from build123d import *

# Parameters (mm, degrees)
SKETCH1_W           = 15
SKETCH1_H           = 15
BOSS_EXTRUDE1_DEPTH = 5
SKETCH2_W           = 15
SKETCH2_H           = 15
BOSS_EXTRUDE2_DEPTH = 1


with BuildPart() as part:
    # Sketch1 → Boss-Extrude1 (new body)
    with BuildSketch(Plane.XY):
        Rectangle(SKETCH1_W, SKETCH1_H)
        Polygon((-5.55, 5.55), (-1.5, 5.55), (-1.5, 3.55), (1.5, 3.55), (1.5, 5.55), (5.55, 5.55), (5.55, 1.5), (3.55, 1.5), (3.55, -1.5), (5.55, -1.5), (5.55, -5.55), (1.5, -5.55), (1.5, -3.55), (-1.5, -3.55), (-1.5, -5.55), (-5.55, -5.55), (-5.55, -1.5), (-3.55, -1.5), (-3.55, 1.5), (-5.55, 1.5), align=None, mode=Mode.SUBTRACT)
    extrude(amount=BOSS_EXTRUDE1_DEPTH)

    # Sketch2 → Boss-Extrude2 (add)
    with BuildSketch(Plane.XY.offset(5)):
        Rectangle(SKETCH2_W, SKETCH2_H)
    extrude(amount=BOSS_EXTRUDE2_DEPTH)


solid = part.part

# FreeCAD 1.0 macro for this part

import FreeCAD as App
import Part
import Sketcher

doc = App.newDocument("Part")
body = doc.addObject("PartDesign::Body", "Body")

sketch1 = body.newObject("Sketcher::SketchObject", "Sketch")
sketch1.AttachmentSupport = (doc.getObject("XY_Plane"), [""])
sketch1.MapMode = "FlatFace"
sketch1.addGeometry(Part.LineSegment(App.Vector(-7.5, 7.5, 0), App.Vector(-7.5, -7.5, 0)), False)
sketch1.addGeometry(Part.LineSegment(App.Vector(-7.5, -7.5, 0), App.Vector(7.5, -7.5, 0)), False)
sketch1.addGeometry(Part.LineSegment(App.Vector(7.5, -7.5, 0), App.Vector(7.5, 7.5, 0)), False)
sketch1.addGeometry(Part.LineSegment(App.Vector(7.5, 7.5, 0), App.Vector(-7.5, 7.5, 0)), False)
sketch1.addGeometry(Part.LineSegment(App.Vector(-5.55, 1.5, 0), App.Vector(-5.55, 5.55, 0)), False)
sketch1.addGeometry(Part.LineSegment(App.Vector(-5.55, 5.55, 0), App.Vector(-1.5, 5.55, 0)), False)
sketch1.addGeometry(Part.LineSegment(App.Vector(-1.5, 5.55, 0), App.Vector(-1.5, 3.55, 0)), False)
sketch1.addGeometry(Part.LineSegment(App.Vector(-1.5, 3.55, 0), App.Vector(1.5, 3.55, 0)), False)
sketch1.addGeometry(Part.LineSegment(App.Vector(1.5, 3.55, 0), App.Vector(1.5, 5.55, 0)), False)
sketch1.addGeometry(Part.LineSegment(App.Vector(1.5, 5.55, 0), App.Vector(5.55, 5.55, 0)), False)
sketch1.addGeometry(Part.LineSegment(App.Vector(5.55, 5.55, 0), App.Vector(5.55, 1.5, 0)), False)
sketch1.addGeometry(Part.LineSegment(App.Vector(5.55, 1.5, 0), App.Vector(3.55, 1.5, 0)), False)
sketch1.addGeometry(Part.LineSegment(App.Vector(3.55, 1.5, 0), App.Vector(3.55, -1.5, 0)), False)
sketch1.addGeometry(Part.LineSegment(App.Vector(3.55, -1.5, 0), App.Vector(5.55, -1.5, 0)), False)
sketch1.addGeometry(Part.LineSegment(App.Vector(5.55, -1.5, 0), App.Vector(5.55, -5.55, 0)), False)
sketch1.addGeometry(Part.LineSegment(App.Vector(5.55, -5.55, 0), App.Vector(1.5, -5.55, 0)), False)
sketch1.addGeometry(Part.LineSegment(App.Vector(1.5, -5.55, 0), App.Vector(1.5, -3.55, 0)), False)
sketch1.addGeometry(Part.LineSegment(App.Vector(1.5, -3.55, 0), App.Vector(-1.5, -3.55, 0)), False)
sketch1.addGeometry(Part.LineSegment(App.Vector(-1.5, -3.55, 0), App.Vector(-1.5, -5.55, 0)), False)
sketch1.addGeometry(Part.LineSegment(App.Vector(-1.5, -5.55, 0), App.Vector(-5.55, -5.55, 0)), False)
sketch1.addGeometry(Part.LineSegment(App.Vector(-5.55, -5.55, 0), App.Vector(-5.55, -1.5, 0)), False)
sketch1.addGeometry(Part.LineSegment(App.Vector(-5.55, -1.5, 0), App.Vector(-3.55, -1.5, 0)), False)
sketch1.addGeometry(Part.LineSegment(App.Vector(-3.55, -1.5, 0), App.Vector(-3.55, 1.5, 0)), False)
sketch1.addGeometry(Part.LineSegment(App.Vector(-3.55, 1.5, 0), App.Vector(-5.55, 1.5, 0)), False)
sketch1.addConstraint(Sketcher.Constraint("Coincident", 0, 2, 1, 1))
sketch1.addConstraint(Sketcher.Constraint("Coincident", 1, 2, 2, 1))
sketch1.addConstraint(Sketcher.Constraint("Coincident", 2, 2, 3, 1))
sketch1.addConstraint(Sketcher.Constraint("Coincident", 3, 2, 0, 1))
sketch1.addConstraint(Sketcher.Constraint("Coincident", 4, 2, 5, 1))
sketch1.addConstraint(Sketcher.Constraint("Coincident", 5, 2, 6, 1))
sketch1.addConstraint(Sketcher.Constraint("Coincident", 6, 2, 7, 1))
sketch1.addConstraint(Sketcher.Constraint("Coincident", 7, 2, 8, 1))
sketch1.addConstraint(Sketcher.Constraint("Coincident", 8, 2, 9, 1))
sketch1.addConstraint(Sketcher.Constraint("Coincident", 9, 2, 10, 1))
sketch1.addConstraint(Sketcher.Constraint("Coincident", 10, 2, 11, 1))
sketch1.addConstraint(Sketcher.Constraint("Coincident", 11, 2, 12, 1))
sketch1.addConstraint(Sketcher.Constraint("Coincident", 12, 2, 13, 1))
sketch1.addConstraint(Sketcher.Constraint("Coincident", 13, 2, 14, 1))
sketch1.addConstraint(Sketcher.Constraint("Coincident", 14, 2, 15, 1))
sketch1.addConstraint(Sketcher.Constraint("Coincident", 15, 2, 16, 1))
sketch1.addConstraint(Sketcher.Constraint("Coincident", 16, 2, 17, 1))
sketch1.addConstraint(Sketcher.Constraint("Coincident", 17, 2, 18, 1))
sketch1.addConstraint(Sketcher.Constraint("Coincident", 18, 2, 19, 1))
sketch1.addConstraint(Sketcher.Constraint("Coincident", 19, 2, 20, 1))
sketch1.addConstraint(Sketcher.Constraint("Coincident", 20, 2, 21, 1))
sketch1.addConstraint(Sketcher.Constraint("Coincident", 21, 2, 22, 1))
sketch1.addConstraint(Sketcher.Constraint("Coincident", 22, 2, 23, 1))
sketch1.addConstraint(Sketcher.Constraint("Coincident", 23, 2, 4, 1))
sketch1.addConstraint(Sketcher.Constraint("Vertical", 0))
sketch1.addConstraint(Sketcher.Constraint("Horizontal", 1))
sketch1.addConstraint(Sketcher.Constraint("Vertical", 2))
sketch1.addConstraint(Sketcher.Constraint("Horizontal", 3))
sketch1.addConstraint(Sketcher.Constraint("Vertical", 4))
sketch1.addConstraint(Sketcher.Constraint("Horizontal", 5))
sketch1.addConstraint(Sketcher.Constraint("Vertical", 6))
sketch1.addConstraint(Sketcher.Constraint("Horizontal", 7))
sketch1.addConstraint(Sketcher.Constraint("Vertical", 8))
sketch1.addConstraint(Sketcher.Constraint("Horizontal", 9))
sketch1.addConstraint(Sketcher.Constraint("Vertical", 10))
sketch1.addConstraint(Sketcher.Constraint("Horizontal", 11))
sketch1.addConstraint(Sketcher.Constraint("Vertical", 12))
sketch1.addConstraint(Sketcher.Constraint("Horizontal", 13))
sketch1.addConstraint(Sketcher.Constraint("Vertical", 14))
sketch1.addConstraint(Sketcher.Constraint("Horizontal", 15))
sketch1.addConstraint(Sketcher.Constraint("Vertical", 16))
sketch1.addConstraint(Sketcher.Constraint("Horizontal", 17))
sketch1.addConstraint(Sketcher.Constraint("Vertical", 18))
sketch1.addConstraint(Sketcher.Constraint("Horizontal", 19))
sketch1.addConstraint(Sketcher.Constraint("Vertical", 20))
sketch1.addConstraint(Sketcher.Constraint("Horizontal", 21))
sketch1.addConstraint(Sketcher.Constraint("Vertical", 22))
sketch1.addConstraint(Sketcher.Constraint("Horizontal", 23))
sketch1.addConstraint(Sketcher.Constraint("Symmetric", 0, 2, 2, 2, -1, 1))
sketch1.addConstraint(Sketcher.Constraint("Symmetric", 4, 2, 14, 2, -1, 1))
sketch1.addConstraint(Sketcher.Constraint("Symmetric", 6, 2, 16, 2, -1, 1))
sketch1.addConstraint(Sketcher.Constraint("Symmetric", 8, 2, 18, 2, -1, 1))
sketch1.addConstraint(Sketcher.Constraint("Symmetric", 10, 2, 20, 2, -1, 1))
sketch1.addConstraint(Sketcher.Constraint("Symmetric", 12, 2, 22, 2, -1, 1))
sketch1.addConstraint(Sketcher.Constraint("Symmetric", 5, 2, 8, 2, -2))
sketch1.addConstraint(Sketcher.Constraint("Symmetric", 13, 2, 20, 2, -2))
sketch1.addConstraint(Sketcher.Constraint("Equal", 3, 0))
sketch1.addConstraint(Sketcher.Constraint("Equal", 19, 4))
sketch1.addConstraint(Sketcher.Constraint("Equal", 23, 6))
sketch1.addConstraint(Sketcher.Constraint("Equal", 17, 12))
sketch1.addConstraint(Sketcher.Constraint("DistanceX", 1, 1, 1, 2, 15.0))
sketch1.addConstraint(Sketcher.Constraint("DistanceX", 7, 1, 7, 2, 3.0))
sketch1.addConstraint(Sketcher.Constraint("DistanceX", 11, 2, 11, 1, 2.0))
sketch1.addConstraint(Sketcher.Constraint("DistanceX", 5, 1, 5, 2, 4.05))
pad1 = body.newObject("PartDesign::Pad", "Pad")
pad1.Profile = sketch1
pad1.Length = 5

sketch2 = body.newObject("Sketcher::SketchObject", "Sketch001")
sketch2.AttachmentSupport = (doc.getObject("XY_Plane"), [""])
sketch2.MapMode = "FlatFace"
sketch2.AttachmentOffset = App.Placement(App.Vector(0, 0, 5), App.Rotation())
sketch2.addGeometry(Part.LineSegment(App.Vector(-7.5, 7.5, 0), App.Vector(-7.5, -7.5, 0)), False)
sketch2.addGeometry(Part.LineSegment(App.Vector(-7.5, -7.5, 0), App.Vector(7.5, -7.5, 0)), False)
sketch2.addGeometry(Part.LineSegment(App.Vector(7.5, -7.5, 0), App.Vector(7.5, 7.5, 0)), False)
sketch2.addGeometry(Part.LineSegment(App.Vector(7.5, 7.5, 0), App.Vector(-7.5, 7.5, 0)), False)
sketch2.addConstraint(Sketcher.Constraint("Coincident", 0, 2, 1, 1))
sketch2.addConstraint(Sketcher.Constraint("Coincident", 1, 2, 2, 1))
sketch2.addConstraint(Sketcher.Constraint("Coincident", 2, 2, 3, 1))
sketch2.addConstraint(Sketcher.Constraint("Coincident", 3, 2, 0, 1))
sketch2.addConstraint(Sketcher.Constraint("Vertical", 0))
sketch2.addConstraint(Sketcher.Constraint("Horizontal", 1))
sketch2.addConstraint(Sketcher.Constraint("Vertical", 2))
sketch2.addConstraint(Sketcher.Constraint("Horizontal", 3))
sketch2.addConstraint(Sketcher.Constraint("Symmetric", 0, 2, 2, 2, -1, 1))
sketch2.addConstraint(Sketcher.Constraint("Equal", 3, 0))
sketch2.addConstraint(Sketcher.Constraint("DistanceX", 1, 1, 1, 2, 15.0))
pad2 = body.newObject("PartDesign::Pad", "Pad001")
pad2.Profile = sketch2
pad2.Length = 1

doc.recompute()
